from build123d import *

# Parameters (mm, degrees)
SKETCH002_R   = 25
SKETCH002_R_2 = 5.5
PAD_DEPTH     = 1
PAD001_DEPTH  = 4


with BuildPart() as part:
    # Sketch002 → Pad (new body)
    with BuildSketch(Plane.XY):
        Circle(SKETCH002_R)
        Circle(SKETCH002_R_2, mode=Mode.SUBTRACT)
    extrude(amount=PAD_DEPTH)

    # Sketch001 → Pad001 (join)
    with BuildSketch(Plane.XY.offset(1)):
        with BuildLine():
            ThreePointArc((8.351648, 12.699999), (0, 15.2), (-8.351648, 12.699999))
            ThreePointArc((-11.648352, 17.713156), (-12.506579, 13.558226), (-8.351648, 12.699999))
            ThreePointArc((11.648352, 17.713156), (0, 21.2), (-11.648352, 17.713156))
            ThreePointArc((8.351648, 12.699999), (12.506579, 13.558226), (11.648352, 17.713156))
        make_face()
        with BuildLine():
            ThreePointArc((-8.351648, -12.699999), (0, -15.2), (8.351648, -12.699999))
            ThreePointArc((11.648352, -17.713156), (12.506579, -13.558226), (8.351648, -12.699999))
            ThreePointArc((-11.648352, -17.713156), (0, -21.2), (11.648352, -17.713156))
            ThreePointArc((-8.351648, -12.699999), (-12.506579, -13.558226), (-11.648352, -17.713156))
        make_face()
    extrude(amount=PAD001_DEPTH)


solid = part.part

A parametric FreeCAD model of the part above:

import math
import FreeCAD as App
import Part
import Sketcher

doc = App.newDocument("Part")
body = doc.addObject("PartDesign::Body", "Body")

# Sketch on XY plane
sketch1 = doc.addObject("Sketcher::SketchObject", "Sketch")
body.addObject(sketch1)
sketch1.AttachmentSupport = (doc.XY_Plane, [""])
sketch1.MapMode = "FlatFace"
sketch1.addGeometry([
    Part.Circle(App.Vector(0, 0, 0), App.Vector(0, 0, 1), 25),
    Part.Circle(App.Vector(0, 0, 0), App.Vector(0, 0, 1), 6),
], False)
sketch1.addConstraint([
    Sketcher.Constraint("Coincident", 0, 3, -1, 1),
    Sketcher.Constraint("Coincident", 1, 3, -1, 1),
    Sketcher.Constraint("Diameter", 0, 50.0),
    Sketcher.Constraint("Diameter", 1, 11.0),
])
pad1 = doc.addObject("PartDesign::Pad", "Pad")
body.addObject(pad1)
pad1.Profile = sketch1
pad1.Length = 1

# Sketch on XY plane
sketch2 = doc.addObject("Sketcher::SketchObject", "Sketch001")
body.addObject(sketch2)
sketch2.AttachmentSupport = (doc.XY_Plane, [""])
sketch2.MapMode = "FlatFace"
sketch2.AttachmentOffset = App.Placement(App.Vector(0, 0, 1), App.Rotation())
sketch2.addGeometry([
    Part.ArcOfCircle(Part.Circle(App.Vector(0, 0, 0), App.Vector(0, 0, 1), 15.2), math.radians(57), math.radians(123)),  # 0
    Part.ArcOfCircle(Part.Circle(App.Vector(10, 15.2, 0), App.Vector(0, 0, 1), 3), math.radians(-123), math.radians(57)),  # 1
    Part.ArcOfCircle(Part.Circle(App.Vector(0, 0, 0), App.Vector(0, 0, 1), 21.2), math.radians(57), math.radians(123)),  # 2
    Part.ArcOfCircle(Part.Circle(App.Vector(-10, 15.2, 0), App.Vector(0, 0, 1), 3), math.radians(123), math.radians(303)),  # 3
    Part.ArcOfCircle(Part.Circle(App.Vector(0, 0, 0), App.Vector(0, 0, 1), 15.2), math.radians(-123), math.radians(-57)),  # 4
    Part.ArcOfCircle(Part.Circle(App.Vector(-10, -15.2, 0), App.Vector(0, 0, 1), 3), math.radians(57), math.radians(237)),  # 5
    Part.ArcOfCircle(Part.Circle(App.Vector(0, 0, 0), App.Vector(0, 0, 1), 21.2), math.radians(-123), math.radians(-57)),  # 6
    Part.ArcOfCircle(Part.Circle(App.Vector(10, -15.2, 0), App.Vector(0, 0, 1), 3), math.radians(-57), math.radians(123)),  # 7
], False)
sketch2.addConstraint([
    Sketcher.Constraint("Tangent", 0, 1, 1, 1),
    Sketcher.Constraint("Tangent", 1, 2, 2, 1),
    Sketcher.Constraint("Tangent", 2, 2, 3, 1),
    Sketcher.Constraint("Tangent", 3, 2, 0, 2),
    Sketcher.Constraint("Tangent", 4, 1, 5, 1),
    Sketcher.Constraint("Tangent", 5, 2, 6, 1),
    Sketcher.Constraint("Tangent", 6, 2, 7, 1),
    Sketcher.Constraint("Tangent", 7, 2, 4, 2),
    Sketcher.Constraint("Coincident", 0, 3, -1, 1),
    Sketcher.Constraint("Coincident", 2, 3, -1, 1),
    Sketcher.Constraint("Coincident", 4, 3, -1, 1),
    Sketcher.Constraint("Coincident", 6, 3, -1, 1),
    Sketcher.Constraint("Equal", 0, 4),
    Sketcher.Constraint("Equal", 3, 5),
    Sketcher.Constraint("Horizontal", 1, 3, 3, 3),
    Sketcher.Constraint("Horizontal", 5, 3, 7, 3),
    Sketcher.Constraint("Vertical", 3, 3, 5, 3),
    Sketcher.Constraint("Radius", 1, 3.0),
    Sketcher.Constraint("Radius", 0, 15.2),
    Sketcher.Constraint("DistanceX", -1, 1, 1, 3, 10.0),
])
pad2 = doc.addObject("PartDesign::Pad", "Pad001")
body.addObject(pad2)
pad2.Profile = sketch2
pad2.Length = 4

doc.recompute()
